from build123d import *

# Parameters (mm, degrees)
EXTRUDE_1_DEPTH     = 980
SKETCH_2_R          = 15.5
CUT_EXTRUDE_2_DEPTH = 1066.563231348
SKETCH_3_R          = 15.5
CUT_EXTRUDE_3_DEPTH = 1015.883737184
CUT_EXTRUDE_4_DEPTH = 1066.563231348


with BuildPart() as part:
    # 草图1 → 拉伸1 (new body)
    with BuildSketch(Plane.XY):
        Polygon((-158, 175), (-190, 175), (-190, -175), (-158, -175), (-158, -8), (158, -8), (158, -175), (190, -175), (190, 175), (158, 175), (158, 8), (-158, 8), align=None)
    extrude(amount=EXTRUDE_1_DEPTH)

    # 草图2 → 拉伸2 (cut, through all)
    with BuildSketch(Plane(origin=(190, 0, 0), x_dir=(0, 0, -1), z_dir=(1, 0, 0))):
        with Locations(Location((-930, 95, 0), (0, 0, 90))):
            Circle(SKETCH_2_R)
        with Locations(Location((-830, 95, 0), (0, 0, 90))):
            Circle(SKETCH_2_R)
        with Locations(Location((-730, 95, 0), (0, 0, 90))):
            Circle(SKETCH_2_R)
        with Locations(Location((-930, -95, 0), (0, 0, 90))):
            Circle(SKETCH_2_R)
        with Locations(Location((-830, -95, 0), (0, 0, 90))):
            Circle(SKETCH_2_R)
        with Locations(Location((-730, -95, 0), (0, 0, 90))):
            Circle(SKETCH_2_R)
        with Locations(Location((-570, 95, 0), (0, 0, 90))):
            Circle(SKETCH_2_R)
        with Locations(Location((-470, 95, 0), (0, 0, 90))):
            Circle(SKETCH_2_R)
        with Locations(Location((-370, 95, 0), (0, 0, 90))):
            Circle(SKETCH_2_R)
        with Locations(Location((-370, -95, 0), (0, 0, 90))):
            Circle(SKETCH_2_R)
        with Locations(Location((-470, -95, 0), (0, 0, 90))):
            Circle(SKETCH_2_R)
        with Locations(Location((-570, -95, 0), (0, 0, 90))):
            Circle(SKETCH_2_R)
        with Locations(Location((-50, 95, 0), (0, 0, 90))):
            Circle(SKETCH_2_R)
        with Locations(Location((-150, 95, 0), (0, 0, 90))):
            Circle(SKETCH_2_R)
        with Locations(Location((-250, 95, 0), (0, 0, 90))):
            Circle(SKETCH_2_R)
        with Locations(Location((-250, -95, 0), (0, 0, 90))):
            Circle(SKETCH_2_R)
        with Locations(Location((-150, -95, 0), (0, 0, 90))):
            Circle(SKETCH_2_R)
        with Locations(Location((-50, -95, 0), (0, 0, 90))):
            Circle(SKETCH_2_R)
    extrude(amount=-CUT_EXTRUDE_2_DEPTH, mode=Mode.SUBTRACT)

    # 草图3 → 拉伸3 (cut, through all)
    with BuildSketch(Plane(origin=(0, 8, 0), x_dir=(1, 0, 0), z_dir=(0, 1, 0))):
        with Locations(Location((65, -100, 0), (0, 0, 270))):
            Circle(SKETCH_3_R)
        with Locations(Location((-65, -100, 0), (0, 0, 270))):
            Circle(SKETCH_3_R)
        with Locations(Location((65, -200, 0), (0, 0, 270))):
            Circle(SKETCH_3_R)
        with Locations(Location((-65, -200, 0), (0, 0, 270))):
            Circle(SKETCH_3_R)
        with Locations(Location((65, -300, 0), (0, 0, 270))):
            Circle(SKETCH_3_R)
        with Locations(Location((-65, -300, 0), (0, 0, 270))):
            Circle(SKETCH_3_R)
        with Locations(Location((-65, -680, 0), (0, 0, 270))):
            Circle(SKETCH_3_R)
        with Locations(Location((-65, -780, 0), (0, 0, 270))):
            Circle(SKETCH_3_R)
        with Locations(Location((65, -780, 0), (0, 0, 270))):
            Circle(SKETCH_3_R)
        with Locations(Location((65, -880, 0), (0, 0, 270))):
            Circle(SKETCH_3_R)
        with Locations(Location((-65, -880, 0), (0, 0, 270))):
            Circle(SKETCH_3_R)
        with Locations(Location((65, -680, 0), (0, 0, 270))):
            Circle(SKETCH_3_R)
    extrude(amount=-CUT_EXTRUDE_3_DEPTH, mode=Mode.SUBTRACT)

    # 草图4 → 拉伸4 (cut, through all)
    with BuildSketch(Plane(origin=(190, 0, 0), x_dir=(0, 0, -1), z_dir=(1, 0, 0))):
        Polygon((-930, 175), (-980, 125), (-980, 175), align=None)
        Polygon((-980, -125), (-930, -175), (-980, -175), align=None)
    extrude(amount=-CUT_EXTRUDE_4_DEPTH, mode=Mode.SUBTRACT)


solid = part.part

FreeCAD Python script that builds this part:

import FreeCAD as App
import Part
import Sketcher
Q = App.Units.Quantity

doc = App.newDocument("Part")
body = doc.addObject("PartDesign::Body", "Body")

# Sketch on XY plane
sketch1 = body.newObject("Sketcher::SketchObject", "Sketch")
sketch1.AttachmentSupport = (doc.getObject("XY_Plane"), [""])
sketch1.MapMode = "FlatFace"
sketch1.addGeometry([
    Part.LineSegment(App.Vector(-158, 175, 0), App.Vector(-190, 175, 0)),  # 0
    Part.LineSegment(App.Vector(-190, 175, 0), App.Vector(-190, -175, 0)),  # 1
    Part.LineSegment(App.Vector(-190, -175, 0), App.Vector(-158, -175, 0)),  # 2
    Part.LineSegment(App.Vector(-158, -175, 0), App.Vector(-158, -8, 0)),  # 3
    Part.LineSegment(App.Vector(-158, -8, 0), App.Vector(158, -8, 0)),  # 4
    Part.LineSegment(App.Vector(158, -8, 0), App.Vector(158, -175, 0)),  # 5
    Part.LineSegment(App.Vector(158, -175, 0), App.Vector(190, -175, 0)),  # 6
    Part.LineSegment(App.Vector(190, -175, 0), App.Vector(190, 175, 0)),  # 7
    Part.LineSegment(App.Vector(190, 175, 0), App.Vector(158, 175, 0)),  # 8
    Part.LineSegment(App.Vector(158, 175, 0), App.Vector(158, 8, 0)),  # 9
    Part.LineSegment(App.Vector(158, 8, 0), App.Vector(-158, 8, 0)),  # 10
    Part.LineSegment(App.Vector(-158, 8, 0), App.Vector(-158, 175, 0)),  # 11
], False)
sketch1.addConstraint([
    Sketcher.Constraint("Coincident", 0, 2, 1, 1),
    Sketcher.Constraint("Coincident", 1, 2, 2, 1),
    Sketcher.Constraint("Coincident", 2, 2, 3, 1),
    Sketcher.Constraint("Coincident", 3, 2, 4, 1),
    Sketcher.Constraint("Coincident", 4, 2, 5, 1),
    Sketcher.Constraint("Coincident", 5, 2, 6, 1),
    Sketcher.Constraint("Coincident", 6, 2, 7, 1),
    Sketcher.Constraint("Coincident", 7, 2, 8, 1),
    Sketcher.Constraint("Coincident", 8, 2, 9, 1),
    Sketcher.Constraint("Coincident", 9, 2, 10, 1),
    Sketcher.Constraint("Coincident", 10, 2, 11, 1),
    Sketcher.Constraint("Coincident", 11, 2, 0, 1),
    Sketcher.Constraint("Horizontal", 0),
    Sketcher.Constraint("Vertical", 1),
    Sketcher.Constraint("Horizontal", 2),
    Sketcher.Constraint("Vertical", 3),
    Sketcher.Constraint("Horizontal", 4),
    Sketcher.Constraint("Vertical", 5),
    Sketcher.Constraint("Horizontal", 6),
    Sketcher.Constraint("Vertical", 7),
    Sketcher.Constraint("Horizontal", 8),
    Sketcher.Constraint("Vertical", 9),
    Sketcher.Constraint("Horizontal", 10),
    Sketcher.Constraint("Vertical", 11),
    Sketcher.Constraint("Symmetric", 0, 2, 6, 2, -1, 1),
    Sketcher.Constraint("Symmetric", 2, 2, 8, 2, -1, 1),
    Sketcher.Constraint("Symmetric", 4, 2, 10, 2, -1, 1),
    Sketcher.Constraint("Symmetric", 2, 2, 5, 2, -2),
    Sketcher.Constraint("DistanceX", 0, 2, 0, 1, Q("32 mm")),
    Sketcher.Constraint("DistanceX", 4, 1, 4, 2, Q("316 mm")),
    Sketcher.Constraint("DistanceY", 1, 2, 1, 1, Q("350 mm")),
    Sketcher.Constraint("DistanceY", 3, 1, 3, 2, Q("167 mm")),
])
pad1 = body.newObject("PartDesign::Pad", "Pad")
pad1.Profile = sketch1
pad1.Length = 980

# Sketch on YZ plane
sketch2 = body.newObject("Sketcher::SketchObject", "Sketch001")
sketch2.AttachmentSupport = (doc.getObject("YZ_Plane"), [""])
sketch2.MapMode = "FlatFace"
sketch2.AttachmentOffset = App.Placement(App.Vector(0, 0, 190), App.Rotation())
sketch2.addGeometry([
    Part.Circle(App.Vector(95, 930, 0), App.Vector(0, 0, 1), 16),  # 0
    Part.Circle(App.Vector(95, 830, 0), App.Vector(0, 0, 1), 16),  # 1
    Part.Circle(App.Vector(95, 730, 0), App.Vector(0, 0, 1), 16),  # 2
    Part.Circle(App.Vector(-95, 930, 0), App.Vector(0, 0, 1), 16),  # 3
    Part.Circle(App.Vector(-95, 830, 0), App.Vector(0, 0, 1), 16),  # 4
    Part.Circle(App.Vector(-95, 730, 0), App.Vector(0, 0, 1), 16),  # 5
    Part.Circle(App.Vector(95, 570, 0), App.Vector(0, 0, 1), 16),  # 6
    Part.Circle(App.Vector(95, 470, 0), App.Vector(0, 0, 1), 16),  # 7
    Part.Circle(App.Vector(95, 370, 0), App.Vector(0, 0, 1), 16),  # 8
    Part.Circle(App.Vector(-95, 370, 0), App.Vector(0, 0, 1), 16),  # 9
    Part.Circle(App.Vector(-95, 470, 0), App.Vector(0, 0, 1), 16),  # 10
    Part.Circle(App.Vector(-95, 570, 0), App.Vector(0, 0, 1), 16),  # 11
    Part.Circle(App.Vector(95, 50, 0), App.Vector(0, 0, 1), 16),  # 12
    Part.Circle(App.Vector(95, 150, 0), App.Vector(0, 0, 1), 16),  # 13
    Part.Circle(App.Vector(95, 250, 0), App.Vector(0, 0, 1), 16),  # 14
    Part.Circle(App.Vector(-95, 250, 0), App.Vector(0, 0, 1), 16),  # 15
    Part.Circle(App.Vector(-95, 150, 0), App.Vector(0, 0, 1), 16),  # 16
    Part.Circle(App.Vector(-95, 50, 0), App.Vector(0, 0, 1), 16),  # 17
], False)
sketch2.addConstraint([
    Sketcher.Constraint("Equal", 0, 1),
    Sketcher.Constraint("Equal", 1, 2),
    Sketcher.Constraint("Equal", 2, 3),
    Sketcher.Constraint("Equal", 3, 4),
    Sketcher.Constraint("Equal", 4, 5),
    Sketcher.Constraint("Equal", 5, 6),
    Sketcher.Constraint("Equal", 6, 7),
    Sketcher.Constraint("Equal", 7, 8),
    Sketcher.Constraint("Equal", 8, 9),
    Sketcher.Constraint("Equal", 9, 10),
    Sketcher.Constraint("Equal", 10, 11),
    Sketcher.Constraint("Equal", 11, 12),
    Sketcher.Constraint("Equal", 12, 13),
    Sketcher.Constraint("Equal", 13, 14),
    Sketcher.Constraint("Equal", 14, 15),
    Sketcher.Constraint("Equal", 15, 16),
    Sketcher.Constraint("Equal", 16, 17),
    Sketcher.Constraint("Symmetric", 0, 3, 3, 3, -2),
    Sketcher.Constraint("Symmetric", 1, 3, 4, 3, -2),
    Sketcher.Constraint("Symmetric", 2, 3, 5, 3, -2),
    Sketcher.Constraint("Symmetric", 8, 3, 9, 3, -2),
    Sketcher.Constraint("Symmetric", 7, 3, 10, 3, -2),
    Sketcher.Constraint("Symmetric", 6, 3, 11, 3, -2),
    Sketcher.Constraint("Symmetric", 14, 3, 15, 3, -2),
    Sketcher.Constraint("Symmetric", 13, 3, 16, 3, -2),
    Sketcher.Constraint("Symmetric", 12, 3, 17, 3, -2),
    Sketcher.Constraint("Vertical", 0, 3, 1, 3),
    Sketcher.Constraint("Vertical", 1, 3, 2, 3),
    Sketcher.Constraint("Vertical", 2, 3, 6, 3),
    Sketcher.Constraint("Vertical", 6, 3, 7, 3),
    Sketcher.Constraint("Vertical", 7, 3, 8, 3),
    Sketcher.Constraint("Vertical", 8, 3, 12, 3),
    Sketcher.Constraint("Vertical", 12, 3, 13, 3),
    Sketcher.Constraint("Vertical", 13, 3, 14, 3),
    Sketcher.Constraint("Diameter", 0, Q("31 mm")),
    Sketcher.Constraint("DistanceX", -1, 1, 0, 3, Q("95 mm")),
    Sketcher.Constraint("DistanceY", -1, 1, 0, 3, Q("930 mm")),
    Sketcher.Constraint("DistanceY", -1, 1, 1, 3, Q("830 mm")),
    Sketcher.Constraint("DistanceY", -1, 1, 2, 3, Q("730 mm")),
    Sketcher.Constraint("DistanceY", -1, 1, 6, 3, Q("570 mm")),
    Sketcher.Constraint("DistanceY", -1, 1, 7, 3, Q("470 mm")),
    Sketcher.Constraint("DistanceY", -1, 1, 8, 3, Q("370 mm")),
    Sketcher.Constraint("DistanceY", -1, 1, 12, 3, Q("50 mm")),
    Sketcher.Constraint("DistanceY", -1, 1, 13, 3, Q("150 mm")),
    Sketcher.Constraint("DistanceY", -1, 1, 14, 3, Q("250 mm")),
])
pocket1 = body.newObject("PartDesign::Pocket", "Pocket")
pocket1.Profile = sketch2
pocket1.Type = "ThroughAll"

# Sketch on XZ plane
sketch3 = body.newObject("Sketcher::SketchObject", "Sketch002")
sketch3.AttachmentSupport = (doc.getObject("XZ_Plane"), [""])
sketch3.MapMode = "FlatFace"
sketch3.AttachmentOffset = App.Placement(App.Vector(0, 0, -8), App.Rotation())
sketch3.addGeometry([
    Part.Circle(App.Vector(65, 100, 0), App.Vector(0, 0, 1), 16),  # 0
    Part.Circle(App.Vector(-65, 100, 0), App.Vector(0, 0, 1), 16),  # 1
    Part.Circle(App.Vector(65, 200, 0), App.Vector(0, 0, 1), 16),  # 2
    Part.Circle(App.Vector(-65, 200, 0), App.Vector(0, 0, 1), 16),  # 3
    Part.Circle(App.Vector(65, 300, 0), App.Vector(0, 0, 1), 16),  # 4
    Part.Circle(App.Vector(-65, 300, 0), App.Vector(0, 0, 1), 16),  # 5
    Part.Circle(App.Vector(-65, 680, 0), App.Vector(0, 0, 1), 16),  # 6
    Part.Circle(App.Vector(-65, 780, 0), App.Vector(0, 0, 1), 16),  # 7
    Part.Circle(App.Vector(65, 780, 0), App.Vector(0, 0, 1), 16),  # 8
    Part.Circle(App.Vector(65, 880, 0), App.Vector(0, 0, 1), 16),  # 9
    Part.Circle(App.Vector(-65, 880, 0), App.Vector(0, 0, 1), 16),  # 10
    Part.Circle(App.Vector(65, 680, 0), App.Vector(0, 0, 1), 16),  # 11
], False)
sketch3.addConstraint([
    Sketcher.Constraint("Equal", 0, 1),
    Sketcher.Constraint("Equal", 1, 2),
    Sketcher.Constraint("Equal", 2, 3),
    Sketcher.Constraint("Equal", 3, 4),
    Sketcher.Constraint("Equal", 4, 5),
    Sketcher.Constraint("Equal", 5, 6),
    Sketcher.Constraint("Equal", 6, 7),
    Sketcher.Constraint("Equal", 7, 8),
    Sketcher.Constraint("Equal", 8, 9),
    Sketcher.Constraint("Equal", 9, 10),
    Sketcher.Constraint("Equal", 10, 11),
    Sketcher.Constraint("Symmetric", 0, 3, 1, 3, -2),
    Sketcher.Constraint("Symmetric", 2, 3, 3, 3, -2),
    Sketcher.Constraint("Symmetric", 4, 3, 5, 3, -2),
    Sketcher.Constraint("Symmetric", 7, 3, 8, 3, -2),
    Sketcher.Constraint("Symmetric", 9, 3, 10, 3, -2),
    Sketcher.Constraint("Symmetric", 6, 3, 11, 3, -2),
    Sketcher.Constraint("Vertical", 0, 3, 2, 3),
    Sketcher.Constraint("Vertical", 2, 3, 4, 3),
    Sketcher.Constraint("Vertical", 5, 3, 6, 3),
    Sketcher.Constraint("Vertical", 6, 3, 7, 3),
    Sketcher.Constraint("Vertical", 8, 3, 9, 3),
    Sketcher.Constraint("Diameter", 0, Q("31 mm")),
    Sketcher.Constraint("DistanceX", -1, 1, 0, 3, Q("65 mm")),
    Sketcher.Constraint("DistanceY", -1, 1, 0, 3, Q("100 mm")),
    Sketcher.Constraint("DistanceY", -1, 1, 2, 3, Q("200 mm")),
    Sketcher.Constraint("DistanceY", -1, 1, 4, 3, Q("300 mm")),
    Sketcher.Constraint("DistanceY", -1, 1, 6, 3, Q("680 mm")),
    Sketcher.Constraint("DistanceY", -1, 1, 7, 3, Q("780 mm")),
    Sketcher.Constraint("DistanceY", -1, 1, 9, 3, Q("880 mm")),
])
pocket2 = body.newObject("PartDesign::Pocket", "Pocket001")
pocket2.Profile = sketch3
pocket2.Type = "ThroughAll"
pocket2.Reversed = True

# Sketch on YZ plane
sketch4 = body.newObject("Sketcher::SketchObject", "Sketch003")
sketch4.AttachmentSupport = (doc.getObject("YZ_Plane"), [""])
sketch4.MapMode = "FlatFace"
sketch4.AttachmentOffset = App.Placement(App.Vector(0, 0, 190), App.Rotation())
sketch4.addGeometry([
    Part.LineSegment(App.Vector(125, 980, 0), App.Vector(175, 930, 0)),  # 0
    Part.LineSegment(App.Vector(175, 930, 0), App.Vector(175, 980, 0)),  # 1
    Part.LineSegment(App.Vector(175, 980, 0), App.Vector(125, 980, 0)),  # 2
    Part.LineSegment(App.Vector(-175, 930, 0), App.Vector(-125, 980, 0)),  # 3
    Part.LineSegment(App.Vector(-125, 980, 0), App.Vector(-175, 980, 0)),  # 4
    Part.LineSegment(App.Vector(-175, 980, 0), App.Vector(-175, 930, 0)),  # 5
], False)
sketch4.addConstraint([
    Sketcher.Constraint("Coincident", 0, 2, 1, 1),
    Sketcher.Constraint("Coincident", 1, 2, 2, 1),
    Sketcher.Constraint("Coincident", 2, 2, 0, 1),
    Sketcher.Constraint("Coincident", 3, 2, 4, 1),
    Sketcher.Constraint("Coincident", 4, 2, 5, 1),
    Sketcher.Constraint("Coincident", 5, 2, 3, 1),
    Sketcher.Constraint("Vertical", 1),
    Sketcher.Constraint("Horizontal", 2),
    Sketcher.Constraint("Horizontal", 4),
    Sketcher.Constraint("Vertical", 5),
    Sketcher.Constraint("Symmetric", 2, 2, 3, 2, -2),
    Sketcher.Constraint("Symmetric", 0, 2, 5, 2, -2),
    Sketcher.Constraint("Perpendicular", 0, 3),
    Sketcher.Constraint("DistanceX", 2, 2, 2, 1, Q("50 mm")),
    Sketcher.Constraint("DistanceX", -1, 1, 0, 2, Q("175 mm")),
    Sketcher.Constraint("DistanceY", -1, 1, 0, 2, Q("930 mm")),
])
pocket3 = body.newObject("PartDesign::Pocket", "Pocket002")
pocket3.Profile = sketch4
pocket3.Type = "ThroughAll"

doc.recompute()
